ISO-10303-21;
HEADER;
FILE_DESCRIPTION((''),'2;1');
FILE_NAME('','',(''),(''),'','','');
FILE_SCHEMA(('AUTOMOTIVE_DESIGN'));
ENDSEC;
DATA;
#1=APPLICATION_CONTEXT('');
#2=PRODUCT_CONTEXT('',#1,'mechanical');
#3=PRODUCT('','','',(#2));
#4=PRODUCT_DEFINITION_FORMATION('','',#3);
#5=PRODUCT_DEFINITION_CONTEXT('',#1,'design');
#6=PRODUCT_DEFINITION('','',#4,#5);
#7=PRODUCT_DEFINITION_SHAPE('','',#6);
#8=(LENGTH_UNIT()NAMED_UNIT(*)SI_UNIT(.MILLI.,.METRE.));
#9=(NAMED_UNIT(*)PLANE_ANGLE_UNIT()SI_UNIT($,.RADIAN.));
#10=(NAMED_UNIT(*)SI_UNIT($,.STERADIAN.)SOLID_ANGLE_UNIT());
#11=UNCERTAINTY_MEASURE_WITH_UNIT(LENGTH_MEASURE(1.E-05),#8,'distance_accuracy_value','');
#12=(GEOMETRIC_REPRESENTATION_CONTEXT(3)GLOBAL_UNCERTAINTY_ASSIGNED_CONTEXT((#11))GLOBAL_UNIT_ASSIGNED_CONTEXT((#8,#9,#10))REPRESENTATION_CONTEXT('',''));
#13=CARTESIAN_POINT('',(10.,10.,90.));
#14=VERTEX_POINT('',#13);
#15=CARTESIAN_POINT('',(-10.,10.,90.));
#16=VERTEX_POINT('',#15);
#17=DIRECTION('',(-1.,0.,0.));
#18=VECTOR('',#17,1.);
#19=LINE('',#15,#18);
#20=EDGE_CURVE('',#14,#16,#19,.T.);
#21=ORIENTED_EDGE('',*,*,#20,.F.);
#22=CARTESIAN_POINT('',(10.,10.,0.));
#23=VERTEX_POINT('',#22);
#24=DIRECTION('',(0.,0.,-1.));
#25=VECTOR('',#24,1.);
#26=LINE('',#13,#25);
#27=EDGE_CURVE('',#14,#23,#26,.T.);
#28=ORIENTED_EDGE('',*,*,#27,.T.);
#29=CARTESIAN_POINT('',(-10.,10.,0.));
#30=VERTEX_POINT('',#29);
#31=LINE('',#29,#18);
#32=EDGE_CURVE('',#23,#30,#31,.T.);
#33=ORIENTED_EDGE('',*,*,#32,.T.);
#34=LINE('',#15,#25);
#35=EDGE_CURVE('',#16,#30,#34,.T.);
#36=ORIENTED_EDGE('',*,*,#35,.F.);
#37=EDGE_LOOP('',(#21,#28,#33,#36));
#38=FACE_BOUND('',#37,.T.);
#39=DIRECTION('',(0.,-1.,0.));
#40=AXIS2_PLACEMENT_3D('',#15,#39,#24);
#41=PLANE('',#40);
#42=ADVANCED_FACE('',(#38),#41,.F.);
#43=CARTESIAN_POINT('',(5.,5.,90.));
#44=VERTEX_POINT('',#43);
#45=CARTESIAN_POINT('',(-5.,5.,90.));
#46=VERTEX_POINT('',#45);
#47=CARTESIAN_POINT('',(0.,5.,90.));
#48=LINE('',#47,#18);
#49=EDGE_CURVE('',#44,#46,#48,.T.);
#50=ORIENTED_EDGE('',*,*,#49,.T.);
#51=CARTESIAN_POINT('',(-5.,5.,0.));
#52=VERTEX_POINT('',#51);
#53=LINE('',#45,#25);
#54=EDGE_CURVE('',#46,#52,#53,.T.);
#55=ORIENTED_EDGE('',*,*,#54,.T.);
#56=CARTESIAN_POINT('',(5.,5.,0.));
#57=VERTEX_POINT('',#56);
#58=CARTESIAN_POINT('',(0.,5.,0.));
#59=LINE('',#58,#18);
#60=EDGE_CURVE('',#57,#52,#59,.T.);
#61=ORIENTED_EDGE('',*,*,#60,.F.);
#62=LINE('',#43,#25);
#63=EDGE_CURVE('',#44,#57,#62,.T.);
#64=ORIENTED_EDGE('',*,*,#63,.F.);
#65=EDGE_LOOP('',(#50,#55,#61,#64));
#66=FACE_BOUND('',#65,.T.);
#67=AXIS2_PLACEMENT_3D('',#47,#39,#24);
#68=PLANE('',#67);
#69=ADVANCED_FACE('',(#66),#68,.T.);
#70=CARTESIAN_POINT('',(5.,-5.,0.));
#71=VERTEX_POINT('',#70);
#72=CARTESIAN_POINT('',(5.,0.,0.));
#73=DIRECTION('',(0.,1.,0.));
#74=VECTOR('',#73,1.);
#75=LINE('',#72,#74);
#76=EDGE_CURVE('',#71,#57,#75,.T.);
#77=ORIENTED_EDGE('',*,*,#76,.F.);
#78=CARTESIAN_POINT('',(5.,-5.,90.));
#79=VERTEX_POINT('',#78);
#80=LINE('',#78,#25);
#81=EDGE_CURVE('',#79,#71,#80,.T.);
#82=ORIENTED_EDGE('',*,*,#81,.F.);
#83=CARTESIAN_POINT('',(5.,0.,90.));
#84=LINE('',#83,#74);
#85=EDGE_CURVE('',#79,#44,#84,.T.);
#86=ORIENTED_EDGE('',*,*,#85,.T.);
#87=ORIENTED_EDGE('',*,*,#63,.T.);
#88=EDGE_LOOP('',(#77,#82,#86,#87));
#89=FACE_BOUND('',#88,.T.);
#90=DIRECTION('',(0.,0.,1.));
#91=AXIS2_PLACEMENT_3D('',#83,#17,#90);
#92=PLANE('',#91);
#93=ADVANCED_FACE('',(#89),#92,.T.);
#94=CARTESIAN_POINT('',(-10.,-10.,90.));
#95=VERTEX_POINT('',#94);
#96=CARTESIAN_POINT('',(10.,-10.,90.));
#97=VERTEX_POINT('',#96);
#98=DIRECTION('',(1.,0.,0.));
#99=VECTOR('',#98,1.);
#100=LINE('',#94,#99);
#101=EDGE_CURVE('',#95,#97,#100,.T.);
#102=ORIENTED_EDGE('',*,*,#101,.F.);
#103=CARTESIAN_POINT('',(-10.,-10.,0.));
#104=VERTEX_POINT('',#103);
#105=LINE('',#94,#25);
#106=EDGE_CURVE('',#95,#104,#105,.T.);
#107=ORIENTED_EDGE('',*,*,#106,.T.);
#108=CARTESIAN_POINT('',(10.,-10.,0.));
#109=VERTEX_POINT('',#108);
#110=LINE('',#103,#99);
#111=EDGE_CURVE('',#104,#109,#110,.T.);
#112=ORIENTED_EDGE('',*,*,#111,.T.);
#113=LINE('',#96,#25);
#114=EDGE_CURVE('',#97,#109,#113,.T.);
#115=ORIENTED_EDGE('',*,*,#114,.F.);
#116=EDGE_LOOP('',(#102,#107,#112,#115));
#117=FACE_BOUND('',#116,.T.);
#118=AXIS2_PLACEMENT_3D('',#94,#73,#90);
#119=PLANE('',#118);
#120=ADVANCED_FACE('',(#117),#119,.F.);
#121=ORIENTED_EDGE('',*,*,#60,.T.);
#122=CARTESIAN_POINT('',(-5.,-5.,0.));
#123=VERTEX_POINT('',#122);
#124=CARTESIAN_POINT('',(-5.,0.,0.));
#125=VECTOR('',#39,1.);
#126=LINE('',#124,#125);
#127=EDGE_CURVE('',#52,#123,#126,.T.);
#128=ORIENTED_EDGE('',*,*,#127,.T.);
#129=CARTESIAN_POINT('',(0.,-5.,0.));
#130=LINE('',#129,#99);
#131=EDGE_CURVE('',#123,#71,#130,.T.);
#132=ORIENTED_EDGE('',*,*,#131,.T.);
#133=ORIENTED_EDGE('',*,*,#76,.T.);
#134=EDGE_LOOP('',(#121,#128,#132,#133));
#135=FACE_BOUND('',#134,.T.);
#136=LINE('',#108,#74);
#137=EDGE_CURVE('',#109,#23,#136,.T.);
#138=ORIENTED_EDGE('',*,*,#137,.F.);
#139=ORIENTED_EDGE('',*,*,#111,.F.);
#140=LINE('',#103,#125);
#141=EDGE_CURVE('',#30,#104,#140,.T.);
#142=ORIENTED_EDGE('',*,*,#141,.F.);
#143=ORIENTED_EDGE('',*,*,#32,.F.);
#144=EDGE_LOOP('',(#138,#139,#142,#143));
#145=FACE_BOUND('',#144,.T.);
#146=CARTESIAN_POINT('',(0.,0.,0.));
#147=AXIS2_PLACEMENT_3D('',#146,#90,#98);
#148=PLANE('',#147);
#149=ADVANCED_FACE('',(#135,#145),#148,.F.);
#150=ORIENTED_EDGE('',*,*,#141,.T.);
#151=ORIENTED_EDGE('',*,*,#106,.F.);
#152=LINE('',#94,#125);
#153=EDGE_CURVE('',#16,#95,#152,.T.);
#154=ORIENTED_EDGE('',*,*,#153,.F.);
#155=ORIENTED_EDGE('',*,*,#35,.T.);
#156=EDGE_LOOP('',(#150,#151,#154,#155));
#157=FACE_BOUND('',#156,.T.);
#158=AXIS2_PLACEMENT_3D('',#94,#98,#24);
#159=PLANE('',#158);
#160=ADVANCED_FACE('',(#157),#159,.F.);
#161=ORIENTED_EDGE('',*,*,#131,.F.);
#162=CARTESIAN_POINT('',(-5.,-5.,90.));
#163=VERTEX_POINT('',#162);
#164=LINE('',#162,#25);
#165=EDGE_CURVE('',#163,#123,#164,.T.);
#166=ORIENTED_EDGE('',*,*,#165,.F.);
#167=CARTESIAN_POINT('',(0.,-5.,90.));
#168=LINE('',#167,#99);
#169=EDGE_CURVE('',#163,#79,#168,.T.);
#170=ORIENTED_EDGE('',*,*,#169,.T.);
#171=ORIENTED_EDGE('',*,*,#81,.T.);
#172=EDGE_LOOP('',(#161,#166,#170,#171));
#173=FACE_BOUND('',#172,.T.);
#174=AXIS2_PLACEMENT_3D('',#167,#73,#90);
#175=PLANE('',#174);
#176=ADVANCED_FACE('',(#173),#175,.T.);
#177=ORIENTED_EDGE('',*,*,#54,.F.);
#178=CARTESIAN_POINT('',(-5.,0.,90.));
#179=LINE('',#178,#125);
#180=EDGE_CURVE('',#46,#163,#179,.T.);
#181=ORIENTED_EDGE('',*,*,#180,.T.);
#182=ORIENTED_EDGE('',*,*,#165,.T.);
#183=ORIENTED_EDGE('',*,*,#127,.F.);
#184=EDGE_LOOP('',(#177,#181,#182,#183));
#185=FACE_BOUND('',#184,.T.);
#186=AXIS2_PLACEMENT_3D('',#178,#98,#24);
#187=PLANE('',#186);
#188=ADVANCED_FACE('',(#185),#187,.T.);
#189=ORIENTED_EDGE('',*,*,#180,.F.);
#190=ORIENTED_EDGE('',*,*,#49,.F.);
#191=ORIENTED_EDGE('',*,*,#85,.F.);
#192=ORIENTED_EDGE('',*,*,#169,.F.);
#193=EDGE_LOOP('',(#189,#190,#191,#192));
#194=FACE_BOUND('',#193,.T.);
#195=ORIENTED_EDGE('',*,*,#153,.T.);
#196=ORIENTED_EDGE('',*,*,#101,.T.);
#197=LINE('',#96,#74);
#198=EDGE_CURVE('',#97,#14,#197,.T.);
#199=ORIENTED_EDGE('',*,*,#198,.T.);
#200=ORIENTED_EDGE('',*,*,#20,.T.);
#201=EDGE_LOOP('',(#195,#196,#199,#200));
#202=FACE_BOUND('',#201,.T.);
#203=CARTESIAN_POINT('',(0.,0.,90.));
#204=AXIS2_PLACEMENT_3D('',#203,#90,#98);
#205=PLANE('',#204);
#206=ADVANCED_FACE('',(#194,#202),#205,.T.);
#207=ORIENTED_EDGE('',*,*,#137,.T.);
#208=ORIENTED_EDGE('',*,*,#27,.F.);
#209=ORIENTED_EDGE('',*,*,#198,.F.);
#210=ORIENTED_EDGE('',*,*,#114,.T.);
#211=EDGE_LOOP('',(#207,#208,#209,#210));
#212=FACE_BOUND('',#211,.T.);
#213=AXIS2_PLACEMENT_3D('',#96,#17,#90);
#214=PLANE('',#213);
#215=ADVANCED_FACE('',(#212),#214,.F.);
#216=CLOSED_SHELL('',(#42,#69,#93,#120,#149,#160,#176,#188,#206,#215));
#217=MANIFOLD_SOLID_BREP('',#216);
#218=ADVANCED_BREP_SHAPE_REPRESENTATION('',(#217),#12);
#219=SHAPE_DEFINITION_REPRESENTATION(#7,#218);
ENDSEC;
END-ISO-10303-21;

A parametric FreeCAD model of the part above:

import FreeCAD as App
import Part
import Sketcher
from FreeCAD import Vector


def add_polygon(sketch, points):
    """Adds a closed chain of lines whose ends are joined by coincident constraints."""
    first, n = sketch.GeometryCount, len(points)
    for a, b in zip(points, points[1:] + points[:1]):
        sketch.addGeometry(Part.LineSegment(App.Vector(*a, 0), App.Vector(*b, 0)), False)
    for i in range(n):
        sketch.addConstraint(Sketcher.Constraint("Coincident", first + i, 2, first + (i + 1) % n, 1))

doc = App.newDocument("Part")
body = doc.addObject("PartDesign::Body", "Body")

sketch1 = doc.addObject("Sketcher::SketchObject", "Sketch")
body.addObject(sketch1)
sketch1.AttachmentSupport = (doc.XY_Plane, [""])
sketch1.MapMode = "FlatFace"
add_polygon(sketch1, [(-10, 10), (-10, -10), (10, -10), (10, 10)])
add_polygon(sketch1, [(5, -5), (-5, -5), (-5, 5), (5, 5)])
sketch1.addConstraint(Sketcher.Constraint("Vertical", 0))
sketch1.addConstraint(Sketcher.Constraint("Horizontal", 1))
sketch1.addConstraint(Sketcher.Constraint("Vertical", 2))
sketch1.addConstraint(Sketcher.Constraint("Horizontal", 3))
sketch1.addConstraint(Sketcher.Constraint("Horizontal", 4))
sketch1.addConstraint(Sketcher.Constraint("Vertical", 5))
sketch1.addConstraint(Sketcher.Constraint("Horizontal", 6))
sketch1.addConstraint(Sketcher.Constraint("Vertical", 7))
sketch1.addConstraint(Sketcher.Constraint("Symmetric", 0, 2, 2, 2, -1, 1))
sketch1.addConstraint(Sketcher.Constraint("Symmetric", 4, 2, 6, 2, -1, 1))
sketch1.addConstraint(Sketcher.Constraint("Equal", 3, 0))
sketch1.addConstraint(Sketcher.Constraint("Equal", 6, 5))
sketch1.addConstraint(Sketcher.Constraint("DistanceX", 1, 1, 1, 2, 20.0))
sketch1.addConstraint(Sketcher.Constraint("DistanceX", 4, 2, 4, 1, 10.0))
pad1 = doc.addObject("PartDesign::Pad", "Pad")
body.addObject(pad1)
pad1.Profile = sketch1
pad1.Length = 90

doc.recompute()
